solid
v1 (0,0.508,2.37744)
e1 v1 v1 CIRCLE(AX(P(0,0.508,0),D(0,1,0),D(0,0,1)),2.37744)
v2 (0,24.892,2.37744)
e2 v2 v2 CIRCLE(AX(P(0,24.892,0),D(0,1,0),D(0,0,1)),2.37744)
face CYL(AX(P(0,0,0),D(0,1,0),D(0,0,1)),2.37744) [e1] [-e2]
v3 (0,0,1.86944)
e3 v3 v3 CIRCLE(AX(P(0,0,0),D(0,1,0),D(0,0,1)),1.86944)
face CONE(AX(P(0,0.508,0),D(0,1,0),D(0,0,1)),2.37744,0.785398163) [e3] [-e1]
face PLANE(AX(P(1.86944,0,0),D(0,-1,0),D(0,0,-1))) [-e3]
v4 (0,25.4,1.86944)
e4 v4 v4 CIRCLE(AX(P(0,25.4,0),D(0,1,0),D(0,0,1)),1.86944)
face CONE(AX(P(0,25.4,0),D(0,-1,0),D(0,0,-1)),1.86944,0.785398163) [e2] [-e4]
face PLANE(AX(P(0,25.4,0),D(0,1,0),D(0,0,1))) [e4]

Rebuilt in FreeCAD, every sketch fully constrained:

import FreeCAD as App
import Part
import Sketcher
Q = App.Units.Quantity

doc = App.newDocument("Part")
params = doc.addObject("Spreadsheet::Sheet", "Params")
for row, (alias, value) in enumerate([
    ("sketch1_height", "1 in"),
    ("sketch1_height2", "0.96 in"),
    ("revolution_angle", "360 deg"),
], start=1):
    params.set(f"A{row}", alias)
    params.set(f"B{row}", "=" + value)
    params.setAlias(f"B{row}", alias)

body = doc.addObject("PartDesign::Body", "Body")

sketch1 = doc.addObject("Sketcher::SketchObject", "Sketch")
body.addObject(sketch1)
sketch1.AttachmentSupport = (doc.XY_Plane, [""])
sketch1.MapMode = "FlatFace"
sketch1.addGeometry([
    Part.LineSegment(App.Vector(1.86944, 0, 0), App.Vector(0, 0, 0)),
    Part.LineSegment(App.Vector(0, 0, 0), App.Vector(0, 25.4, 0)),
    Part.LineSegment(App.Vector(0, 25.4, 0), App.Vector(1.86944, 25.4, 0)),
    Part.LineSegment(App.Vector(1.86944, 25.4, 0), App.Vector(2.37744, 24.892, 0)),
    Part.LineSegment(App.Vector(2.37744, 24.892, 0), App.Vector(2.37744, 0.508, 0)),
    Part.LineSegment(App.Vector(2.37744, 0.508, 0), App.Vector(1.86944, 0, 0)),
], False)
sketch1.addConstraint([
    Sketcher.Constraint("Coincident", 0, 2, 1, 1),
    Sketcher.Constraint("Coincident", 1, 2, 2, 1),
    Sketcher.Constraint("Coincident", 2, 2, 3, 1),
    Sketcher.Constraint("Coincident", 3, 2, 4, 1),
    Sketcher.Constraint("Coincident", 4, 2, 5, 1),
    Sketcher.Constraint("Coincident", 5, 2, 0, 1),
    Sketcher.Constraint("Horizontal", 0),
    Sketcher.Constraint("Vertical", 1),
    Sketcher.Constraint("Horizontal", 2),
    Sketcher.Constraint("Vertical", 4),
    Sketcher.Constraint("Coincident", 0, 2, -1, 1),
    Sketcher.Constraint("Perpendicular", 3, 5),
    Sketcher.Constraint("Vertical", 2, 2, 5, 2),
    Sketcher.Constraint("Equal", 3, 5),
    Sketcher.Constraint("DistanceY", 1, 1, 1, 2, Q("1 in")),
    Sketcher.Constraint("DistanceY", 4, 2, 4, 1, Q("0.96 in")),
    Sketcher.Constraint("DistanceX", 0, 2, 0, 1, Q("0.0736 in")),
])
sketch1.setExpression("Constraints[14]", "Params.sketch1_height")
sketch1.setExpression("Constraints[15]", "Params.sketch1_height2")
revolution = doc.addObject("PartDesign::Revolution", "Revolution")
body.addObject(revolution)
revolution.Profile = sketch1
revolution.ReferenceAxis = (sketch1, ["V_Axis"])
revolution.setExpression("Angle", "Params.revolution_angle")

doc.recompute()
